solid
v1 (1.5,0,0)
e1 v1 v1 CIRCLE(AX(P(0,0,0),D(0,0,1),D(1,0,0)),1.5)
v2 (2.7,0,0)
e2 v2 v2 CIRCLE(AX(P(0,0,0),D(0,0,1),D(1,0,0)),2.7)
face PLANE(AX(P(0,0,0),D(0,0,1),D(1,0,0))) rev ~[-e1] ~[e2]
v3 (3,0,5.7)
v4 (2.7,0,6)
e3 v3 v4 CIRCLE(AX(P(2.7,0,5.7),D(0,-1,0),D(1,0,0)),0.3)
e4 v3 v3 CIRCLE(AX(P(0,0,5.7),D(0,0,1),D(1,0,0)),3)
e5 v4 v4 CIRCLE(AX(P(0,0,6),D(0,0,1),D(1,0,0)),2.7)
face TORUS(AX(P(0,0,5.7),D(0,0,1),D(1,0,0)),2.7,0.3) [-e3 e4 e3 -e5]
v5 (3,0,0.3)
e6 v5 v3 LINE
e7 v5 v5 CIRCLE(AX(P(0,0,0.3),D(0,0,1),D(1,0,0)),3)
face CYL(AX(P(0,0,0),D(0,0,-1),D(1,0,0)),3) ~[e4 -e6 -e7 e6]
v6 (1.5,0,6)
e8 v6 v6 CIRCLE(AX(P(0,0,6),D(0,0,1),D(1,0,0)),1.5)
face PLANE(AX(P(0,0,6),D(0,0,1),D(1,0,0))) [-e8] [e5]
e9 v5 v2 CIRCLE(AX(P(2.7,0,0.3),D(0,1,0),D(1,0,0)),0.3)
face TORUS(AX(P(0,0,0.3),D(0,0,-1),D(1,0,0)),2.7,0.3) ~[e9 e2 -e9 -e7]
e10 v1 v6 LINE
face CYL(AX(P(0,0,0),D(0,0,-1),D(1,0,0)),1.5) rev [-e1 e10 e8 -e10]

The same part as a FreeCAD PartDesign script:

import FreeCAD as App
import Part
import Sketcher

V = App.Vector
Q = App.Units.Quantity


def edges_at(feature, points):
    """Names of the edges that pass closest to the given points."""
    edges = feature.Shape.Edges
    near = lambda p: min(range(len(edges)), key=lambda i: edges[i].distToShape(Part.Vertex(*p))[0])
    return sorted({f"Edge{near(p) + 1}" for p in points})

doc = App.newDocument("Part")
params = doc.addObject("Spreadsheet::Sheet", "Params")
for row, (alias, value) in enumerate([
    ("sketch1_diameter", "6 mm"),
    ("sketch1_diameter2", "3 mm"),
    ("pad1_length", "6 mm"),
    ("fillet_radius", "0.3 mm"),
], start=1):
    params.set(f"A{row}", alias)
    params.set(f"B{row}", "=" + value)
    params.setAlias(f"B{row}", alias)

body = doc.addObject("PartDesign::Body", "Body")

# Sketch on XY plane
sketch1 = doc.addObject("Sketcher::SketchObject", "Sketch")
body.addObject(sketch1)
sketch1.AttachmentSupport = (doc.XY_Plane, [""])
sketch1.MapMode = "FlatFace"
sketch1.addGeometry(Part.Circle(V(0, 0, 0), V(0, 0, 1), 3), False)
sketch1.addGeometry(Part.Circle(V(0, 0, 0), V(0, 0, 1), 1.5), False)
sketch1.addConstraint(Sketcher.Constraint("Coincident", 0, 3, -1, 1))
sketch1.addConstraint(Sketcher.Constraint("Coincident", 1, 3, -1, 1))
sketch1.addConstraint(Sketcher.Constraint("Diameter", 0, Q("6 mm")))
sketch1.addConstraint(Sketcher.Constraint("Diameter", 1, Q("3 mm")))
sketch1.setExpression("Constraints[2]", "Params.sketch1_diameter")
sketch1.setExpression("Constraints[3]", "Params.sketch1_diameter2")
pad1 = doc.addObject("PartDesign::Pad", "Pad")
body.addObject(pad1)
pad1.Profile = sketch1
pad1.setExpression("Length", "Params.pad1_length")
doc.recompute()

fillet = doc.addObject("PartDesign::Fillet", "Fillet")
body.addObject(fillet)
fillet.Base = (pad1, edges_at(pad1, [(-3, 0, 6), (-3, 0, 0)]))
fillet.setExpression("Radius", "Params.fillet_radius")

doc.recompute()
